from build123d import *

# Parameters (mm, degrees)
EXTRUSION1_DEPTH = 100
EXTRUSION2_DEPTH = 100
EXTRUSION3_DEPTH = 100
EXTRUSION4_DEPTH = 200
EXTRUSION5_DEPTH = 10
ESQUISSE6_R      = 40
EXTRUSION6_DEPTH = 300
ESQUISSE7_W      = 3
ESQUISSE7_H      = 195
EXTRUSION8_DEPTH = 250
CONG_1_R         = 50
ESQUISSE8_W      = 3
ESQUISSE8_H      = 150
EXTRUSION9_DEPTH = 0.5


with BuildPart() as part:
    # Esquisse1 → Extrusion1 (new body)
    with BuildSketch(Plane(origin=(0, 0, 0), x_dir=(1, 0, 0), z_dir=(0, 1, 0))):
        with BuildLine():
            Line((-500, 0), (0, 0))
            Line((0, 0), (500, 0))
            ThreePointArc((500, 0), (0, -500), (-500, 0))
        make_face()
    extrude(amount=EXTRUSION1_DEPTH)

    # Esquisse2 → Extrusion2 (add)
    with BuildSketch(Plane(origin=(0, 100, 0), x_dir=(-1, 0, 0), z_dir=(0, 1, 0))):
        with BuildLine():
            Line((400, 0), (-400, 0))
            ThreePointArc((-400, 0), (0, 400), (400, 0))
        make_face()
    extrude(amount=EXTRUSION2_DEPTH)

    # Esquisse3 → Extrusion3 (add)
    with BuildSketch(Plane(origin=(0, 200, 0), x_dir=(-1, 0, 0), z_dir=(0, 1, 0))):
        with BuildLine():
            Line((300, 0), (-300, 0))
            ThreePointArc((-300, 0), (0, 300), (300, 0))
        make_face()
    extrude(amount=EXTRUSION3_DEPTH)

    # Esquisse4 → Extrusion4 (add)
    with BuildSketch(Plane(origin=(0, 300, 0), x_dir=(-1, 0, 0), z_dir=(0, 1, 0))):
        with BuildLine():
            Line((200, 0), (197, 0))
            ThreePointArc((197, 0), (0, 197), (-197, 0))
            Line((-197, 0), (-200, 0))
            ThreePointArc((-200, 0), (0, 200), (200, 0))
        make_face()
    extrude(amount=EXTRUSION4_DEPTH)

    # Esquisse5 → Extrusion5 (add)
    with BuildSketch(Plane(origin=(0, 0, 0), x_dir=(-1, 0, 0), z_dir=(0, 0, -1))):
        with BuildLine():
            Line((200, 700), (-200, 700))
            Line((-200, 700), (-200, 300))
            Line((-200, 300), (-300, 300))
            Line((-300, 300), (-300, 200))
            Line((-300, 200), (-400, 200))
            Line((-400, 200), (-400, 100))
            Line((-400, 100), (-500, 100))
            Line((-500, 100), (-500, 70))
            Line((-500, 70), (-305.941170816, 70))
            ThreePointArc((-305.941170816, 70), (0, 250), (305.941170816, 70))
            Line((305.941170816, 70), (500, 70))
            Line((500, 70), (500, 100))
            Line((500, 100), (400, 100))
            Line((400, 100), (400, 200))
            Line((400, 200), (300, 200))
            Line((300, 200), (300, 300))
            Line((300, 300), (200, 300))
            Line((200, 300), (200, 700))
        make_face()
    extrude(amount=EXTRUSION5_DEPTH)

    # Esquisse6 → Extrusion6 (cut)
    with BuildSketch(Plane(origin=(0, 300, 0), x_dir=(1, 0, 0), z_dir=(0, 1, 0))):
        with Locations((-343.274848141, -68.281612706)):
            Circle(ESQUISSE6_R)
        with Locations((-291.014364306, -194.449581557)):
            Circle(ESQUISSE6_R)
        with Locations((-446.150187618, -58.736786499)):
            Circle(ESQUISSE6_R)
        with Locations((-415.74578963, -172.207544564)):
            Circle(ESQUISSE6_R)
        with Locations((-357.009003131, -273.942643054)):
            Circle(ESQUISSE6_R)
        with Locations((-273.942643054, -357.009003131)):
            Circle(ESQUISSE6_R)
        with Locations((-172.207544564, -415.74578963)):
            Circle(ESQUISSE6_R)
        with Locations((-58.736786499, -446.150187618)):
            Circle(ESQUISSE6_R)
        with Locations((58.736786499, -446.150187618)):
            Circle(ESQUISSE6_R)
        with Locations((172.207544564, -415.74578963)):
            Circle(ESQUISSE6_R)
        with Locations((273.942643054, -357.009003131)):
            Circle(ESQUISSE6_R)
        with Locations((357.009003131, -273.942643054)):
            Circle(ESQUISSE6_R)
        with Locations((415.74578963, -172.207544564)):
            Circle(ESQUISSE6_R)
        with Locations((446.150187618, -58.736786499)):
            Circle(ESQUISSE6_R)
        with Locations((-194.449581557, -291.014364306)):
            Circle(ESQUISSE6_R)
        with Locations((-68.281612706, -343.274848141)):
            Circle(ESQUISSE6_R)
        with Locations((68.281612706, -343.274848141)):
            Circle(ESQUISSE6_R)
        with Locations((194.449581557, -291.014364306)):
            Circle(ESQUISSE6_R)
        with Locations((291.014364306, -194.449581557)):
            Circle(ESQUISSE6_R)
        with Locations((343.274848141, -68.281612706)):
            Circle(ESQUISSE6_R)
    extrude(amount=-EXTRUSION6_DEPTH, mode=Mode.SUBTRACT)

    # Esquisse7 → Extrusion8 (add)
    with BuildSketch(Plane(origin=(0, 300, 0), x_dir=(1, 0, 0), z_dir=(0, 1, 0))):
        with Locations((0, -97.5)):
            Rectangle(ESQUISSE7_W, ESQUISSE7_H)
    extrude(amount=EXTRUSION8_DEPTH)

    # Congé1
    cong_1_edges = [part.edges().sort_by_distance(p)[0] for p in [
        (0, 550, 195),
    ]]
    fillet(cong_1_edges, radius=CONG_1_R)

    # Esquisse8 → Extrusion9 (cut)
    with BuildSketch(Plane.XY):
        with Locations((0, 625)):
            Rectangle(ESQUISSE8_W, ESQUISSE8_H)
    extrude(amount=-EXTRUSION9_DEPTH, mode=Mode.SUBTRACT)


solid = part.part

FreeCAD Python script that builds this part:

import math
import FreeCAD as App
import Part
import Sketcher


def edges_at(feature, points):
    """Names of the edges that pass closest to the given points."""
    edges = feature.Shape.Edges
    near = lambda p: min(range(len(edges)), key=lambda i: edges[i].distToShape(Part.Vertex(*p))[0])
    return sorted({f"Edge{near(p) + 1}" for p in points})

doc = App.newDocument("Part")
body = doc.addObject("PartDesign::Body", "Body")

sketch1 = doc.addObject("Sketcher::SketchObject", "Sketch")
body.addObject(sketch1)
sketch1.AttachmentSupport = (doc.XZ_Plane, [""])
sketch1.MapMode = "FlatFace"
sketch1.addGeometry([
    Part.LineSegment(App.Vector(500, 0, 0), App.Vector(-500, 0, 0)),
    Part.ArcOfCircle(Part.Circle(App.Vector(0, 0, 0), App.Vector(0, 0, 1), 500), math.radians(0), math.radians(180)),
], False)
sketch1.addConstraint([
    Sketcher.Constraint("Coincident", 0, 1, 1, 1),
    Sketcher.Constraint("Coincident", 1, 2, 0, 2),
    Sketcher.Constraint("Horizontal", 0),
    Sketcher.Constraint("Coincident", 1, 3, -1, 1),
    Sketcher.Constraint("PointOnObject", 0, 1, -1),
    Sketcher.Constraint("Radius", 1, 500.0),
])
pad1 = doc.addObject("PartDesign::Pad", "Pad")
body.addObject(pad1)
pad1.Profile = sketch1
pad1.Length = 100
pad1.Reversed = True

sketch2 = doc.addObject("Sketcher::SketchObject", "Sketch001")
body.addObject(sketch2)
sketch2.AttachmentSupport = (doc.XZ_Plane, [""])
sketch2.MapMode = "FlatFace"
sketch2.AttachmentOffset = App.Placement(App.Vector(0, 0, -100), App.Rotation())
sketch2.addGeometry([
    Part.LineSegment(App.Vector(400, 0, 0), App.Vector(-400, 0, 0)),
    Part.ArcOfCircle(Part.Circle(App.Vector(0, 0, 0), App.Vector(0, 0, 1), 400), math.radians(0), math.radians(180)),
], False)
sketch2.addConstraint([
    Sketcher.Constraint("Coincident", 0, 1, 1, 1),
    Sketcher.Constraint("Coincident", 1, 2, 0, 2),
    Sketcher.Constraint("Horizontal", 0),
    Sketcher.Constraint("Coincident", 1, 3, -1, 1),
    Sketcher.Constraint("PointOnObject", 0, 1, -1),
    Sketcher.Constraint("Radius", 1, 400.0),
])
pad2 = doc.addObject("PartDesign::Pad", "Pad001")
body.addObject(pad2)
pad2.Profile = sketch2
pad2.Length = 100
pad2.Reversed = True

sketch3 = doc.addObject("Sketcher::SketchObject", "Sketch002")
body.addObject(sketch3)
sketch3.AttachmentSupport = (doc.XZ_Plane, [""])
sketch3.MapMode = "FlatFace"
sketch3.AttachmentOffset = App.Placement(App.Vector(0, 0, -200), App.Rotation())
sketch3.addGeometry([
    Part.LineSegment(App.Vector(300, 0, 0), App.Vector(-300, 0, 0)),
    Part.ArcOfCircle(Part.Circle(App.Vector(0, 0, 0), App.Vector(0, 0, 1), 300), math.radians(0), math.radians(180)),
], False)
sketch3.addConstraint([
    Sketcher.Constraint("Coincident", 0, 1, 1, 1),
    Sketcher.Constraint("Coincident", 1, 2, 0, 2),
    Sketcher.Constraint("Horizontal", 0),
    Sketcher.Constraint("Coincident", 1, 3, -1, 1),
    Sketcher.Constraint("PointOnObject", 0, 1, -1),
    Sketcher.Constraint("Radius", 1, 300.0),
])
pad3 = doc.addObject("PartDesign::Pad", "Pad002")
body.addObject(pad3)
pad3.Profile = sketch3
pad3.Length = 100
pad3.Reversed = True

sketch4 = doc.addObject("Sketcher::SketchObject", "Sketch003")
body.addObject(sketch4)
sketch4.AttachmentSupport = (doc.XZ_Plane, [""])
sketch4.MapMode = "FlatFace"
sketch4.AttachmentOffset = App.Placement(App.Vector(0, 0, -300), App.Rotation())
sketch4.addGeometry([
    Part.LineSegment(App.Vector(-197, 0, 0), App.Vector(-200, 0, 0)),
    Part.ArcOfCircle(Part.Circle(App.Vector(0, 0, 0), App.Vector(0, 0, 1), 200), math.radians(0), math.radians(180)),
    Part.LineSegment(App.Vector(200, 0, 0), App.Vector(197, 0, 0)),
    Part.ArcOfCircle(Part.Circle(App.Vector(0, 0, 0), App.Vector(0, 0, 1), 197), math.radians(0), math.radians(180)),
], False)
sketch4.addConstraint([
    Sketcher.Constraint("Coincident", 0, 2, 1, 2),
    Sketcher.Constraint("Coincident", 1, 1, 2, 1),
    Sketcher.Constraint("Coincident", 2, 2, 3, 1),
    Sketcher.Constraint("Coincident", 3, 2, 0, 1),
    Sketcher.Constraint("Horizontal", 0),
    Sketcher.Constraint("Horizontal", 2),
    Sketcher.Constraint("Coincident", 1, 3, -1, 1),
    Sketcher.Constraint("Coincident", 3, 3, -1, 1),
    Sketcher.Constraint("PointOnObject", 0, 2, -1),
    Sketcher.Constraint("PointOnObject", 1, 1, -1),
    Sketcher.Constraint("Radius", 1, 200.0),
    Sketcher.Constraint("Radius", 3, 197.0),
])
pad4 = doc.addObject("PartDesign::Pad", "Pad003")
body.addObject(pad4)
pad4.Profile = sketch4
pad4.Length = 200
pad4.Reversed = True

sketch5 = doc.addObject("Sketcher::SketchObject", "Sketch004")
body.addObject(sketch5)
sketch5.AttachmentSupport = (doc.XY_Plane, [""])
sketch5.MapMode = "FlatFace"
sketch5.addGeometry([
    Part.LineSegment(App.Vector(-200, 700, 0), App.Vector(200, 700, 0)),
    Part.LineSegment(App.Vector(200, 700, 0), App.Vector(200, 300, 0)),
    Part.LineSegment(App.Vector(200, 300, 0), App.Vector(300, 300, 0)),
    Part.LineSegment(App.Vector(300, 300, 0), App.Vector(300, 200, 0)),
    Part.LineSegment(App.Vector(300, 200, 0), App.Vector(400, 200, 0)),
    Part.LineSegment(App.Vector(400, 200, 0), App.Vector(400, 100, 0)),
    Part.LineSegment(App.Vector(400, 100, 0), App.Vector(500, 100, 0)),
    Part.LineSegment(App.Vector(500, 100, 0), App.Vector(500, 70, 0)),
    Part.LineSegment(App.Vector(500, 70, 0), App.Vector(306, 70, 0)),
    Part.ArcOfCircle(Part.Circle(App.Vector(0, -100, 0), App.Vector(0, 0, 1), 350), math.radians(29), math.radians(151)),
    Part.LineSegment(App.Vector(-306, 70, 0), App.Vector(-500, 70, 0)),
    Part.LineSegment(App.Vector(-500, 70, 0), App.Vector(-500, 100, 0)),
    Part.LineSegment(App.Vector(-500, 100, 0), App.Vector(-400, 100, 0)),
    Part.LineSegment(App.Vector(-400, 100, 0), App.Vector(-400, 200, 0)),
    Part.LineSegment(App.Vector(-400, 200, 0), App.Vector(-300, 200, 0)),
    Part.LineSegment(App.Vector(-300, 200, 0), App.Vector(-300, 300, 0)),
    Part.LineSegment(App.Vector(-300, 300, 0), App.Vector(-200, 300, 0)),
    Part.LineSegment(App.Vector(-200, 300, 0), App.Vector(-200, 700, 0)),
], False)
sketch5.addConstraint([
    Sketcher.Constraint("Coincident", 0, 2, 1, 1),
    Sketcher.Constraint("Coincident", 1, 2, 2, 1),
    Sketcher.Constraint("Coincident", 2, 2, 3, 1),
    Sketcher.Constraint("Coincident", 3, 2, 4, 1),
    Sketcher.Constraint("Coincident", 4, 2, 5, 1),
    Sketcher.Constraint("Coincident", 5, 2, 6, 1),
    Sketcher.Constraint("Coincident", 6, 2, 7, 1),
    Sketcher.Constraint("Coincident", 7, 2, 8, 1),
    Sketcher.Constraint("Coincident", 8, 2, 9, 1),
    Sketcher.Constraint("Coincident", 9, 2, 10, 1),
    Sketcher.Constraint("Coincident", 10, 2, 11, 1),
    Sketcher.Constraint("Coincident", 11, 2, 12, 1),
    Sketcher.Constraint("Coincident", 12, 2, 13, 1),
    Sketcher.Constraint("Coincident", 13, 2, 14, 1),
    Sketcher.Constraint("Coincident", 14, 2, 15, 1),
    Sketcher.Constraint("Coincident", 15, 2, 16, 1),
    Sketcher.Constraint("Coincident", 16, 2, 17, 1),
    Sketcher.Constraint("Coincident", 17, 2, 0, 1),
    Sketcher.Constraint("Horizontal", 0),
    Sketcher.Constraint("Vertical", 1),
    Sketcher.Constraint("Horizontal", 2),
    Sketcher.Constraint("Vertical", 3),
    Sketcher.Constraint("Horizontal", 4),
    Sketcher.Constraint("Vertical", 5),
    Sketcher.Constraint("Horizontal", 6),
    Sketcher.Constraint("Vertical", 7),
    Sketcher.Constraint("Horizontal", 8),
    Sketcher.Constraint("Horizontal", 10),
    Sketcher.Constraint("Vertical", 11),
    Sketcher.Constraint("Horizontal", 12),
    Sketcher.Constraint("Vertical", 13),
    Sketcher.Constraint("Horizontal", 14),
    Sketcher.Constraint("Vertical", 15),
    Sketcher.Constraint("Horizontal", 16),
    Sketcher.Constraint("Vertical", 17),
    Sketcher.Constraint("Symmetric", 8, 2, 9, 2, -2),
    Sketcher.Constraint("Symmetric", 6, 2, 11, 2, -2),
    Sketcher.Constraint("Symmetric", 4, 2, 13, 2, -2),
    Sketcher.Constraint("Symmetric", 2, 2, 15, 2, -2),
    Sketcher.Constraint("Equal", 2, 4),
    Sketcher.Constraint("Equal", 4, 6),
    Sketcher.Constraint("Equal", 14, 16),
    Sketcher.Constraint("Equal", 0, 1),
    Sketcher.Constraint("Equal", 16, 3),
    Sketcher.Constraint("Equal", 3, 5),
    Sketcher.Constraint("Radius", 9, 350.0),
    Sketcher.Constraint("DistanceX", 0, 1, 0, 2, 400.0),
    Sketcher.Constraint("DistanceX", 2, 1, 2, 2, 100.0),
    Sketcher.Constraint("DistanceY", 7, 2, 7, 1, 30.0),
    Sketcher.Constraint("DistanceY", 9, 3, -1, 1, 100.0),
    Sketcher.Constraint("DistanceY", -1, 1, 0, 2, 700.0),
])
pad5 = doc.addObject("PartDesign::Pad", "Pad004")
body.addObject(pad5)
pad5.Profile = sketch5
pad5.Length = 10
pad5.Reversed = True

sketch6 = doc.addObject("Sketcher::SketchObject", "Sketch005")
body.addObject(sketch6)
sketch6.AttachmentSupport = (doc.XZ_Plane, [""])
sketch6.MapMode = "FlatFace"
sketch6.AttachmentOffset = App.Placement(App.Vector(0, 0, -300), App.Rotation())
sketch6.addGeometry([
    Part.Circle(App.Vector(-343, 68, 0), App.Vector(0, 0, 1), 40),
    Part.Circle(App.Vector(-291, 194, 0), App.Vector(0, 0, 1), 40),
    Part.Circle(App.Vector(-446, 59, 0), App.Vector(0, 0, 1), 40),
    Part.Circle(App.Vector(-416, 172, 0), App.Vector(0, 0, 1), 40),
    Part.Circle(App.Vector(-357, 274, 0), App.Vector(0, 0, 1), 40),
    Part.Circle(App.Vector(-274, 357, 0), App.Vector(0, 0, 1), 40),
    Part.Circle(App.Vector(-172, 416, 0), App.Vector(0, 0, 1), 40),
    Part.Circle(App.Vector(-59, 446, 0), App.Vector(0, 0, 1), 40),
    Part.Circle(App.Vector(59, 446, 0), App.Vector(0, 0, 1), 40),
    Part.Circle(App.Vector(172, 416, 0), App.Vector(0, 0, 1), 40),
    Part.Circle(App.Vector(274, 357, 0), App.Vector(0, 0, 1), 40),
    Part.Circle(App.Vector(357, 274, 0), App.Vector(0, 0, 1), 40),
    Part.Circle(App.Vector(416, 172, 0), App.Vector(0, 0, 1), 40),
    Part.Circle(App.Vector(446, 59, 0), App.Vector(0, 0, 1), 40),
    Part.Circle(App.Vector(-194, 291, 0), App.Vector(0, 0, 1), 40),
    Part.Circle(App.Vector(-68, 343, 0), App.Vector(0, 0, 1), 40),
    Part.Circle(App.Vector(68, 343, 0), App.Vector(0, 0, 1), 40),
    Part.Circle(App.Vector(194, 291, 0), App.Vector(0, 0, 1), 40),
    Part.Circle(App.Vector(291, 194, 0), App.Vector(0, 0, 1), 40),
    Part.Circle(App.Vector(343, 68, 0), App.Vector(0, 0, 1), 40),
], False)
sketch6.addConstraint([
    Sketcher.Constraint("Equal", 0, 1),
    Sketcher.Constraint("Equal", 1, 2),
    Sketcher.Constraint("Equal", 2, 3),
    Sketcher.Constraint("Equal", 3, 4),
    Sketcher.Constraint("Equal", 4, 5),
    Sketcher.Constraint("Equal", 5, 6),
    Sketcher.Constraint("Equal", 6, 7),
    Sketcher.Constraint("Equal", 7, 8),
    Sketcher.Constraint("Equal", 8, 9),
    Sketcher.Constraint("Equal", 9, 10),
    Sketcher.Constraint("Equal", 10, 11),
    Sketcher.Constraint("Equal", 11, 12),
    Sketcher.Constraint("Equal", 12, 13),
    Sketcher.Constraint("Equal", 13, 14),
    Sketcher.Constraint("Equal", 14, 15),
    Sketcher.Constraint("Equal", 15, 16),
    Sketcher.Constraint("Equal", 16, 17),
    Sketcher.Constraint("Equal", 17, 18),
    Sketcher.Constraint("Equal", 18, 19),
    Sketcher.Constraint("Symmetric", 7, 3, 8, 3, -2),
    Sketcher.Constraint("Symmetric", 6, 3, 9, 3, -2),
    Sketcher.Constraint("Symmetric", 5, 3, 10, 3, -2),
    Sketcher.Constraint("Symmetric", 4, 3, 11, 3, -2),
    Sketcher.Constraint("Symmetric", 3, 3, 12, 3, -2),
    Sketcher.Constraint("Symmetric", 2, 3, 13, 3, -2),
    Sketcher.Constraint("Symmetric", 15, 3, 16, 3, -2),
    Sketcher.Constraint("Symmetric", 14, 3, 17, 3, -2),
    Sketcher.Constraint("Symmetric", 1, 3, 18, 3, -2),
    Sketcher.Constraint("Symmetric", 0, 3, 19, 3, -2),
    Sketcher.Constraint("Diameter", 0, 80.0),
    Sketcher.Constraint("DistanceY", 3, 3, 4, 3, 101.735098),
    Sketcher.Constraint("DistanceX", 5, 3, 6, 3, 101.735098),
    Sketcher.Constraint("DistanceX", 8, 3, 13, 3, 387.413401),
    Sketcher.Constraint("DistanceY", 13, 3, 8, 3, 387.413401),
    Sketcher.Constraint("DistanceX", 15, 3, 8, 3, 127.018399),
    Sketcher.Constraint("DistanceX", 0, 3, -1, 1, 343.274848),
    Sketcher.Constraint("DistanceY", -1, 1, 1, 3, 194.449582),
    Sketcher.Constraint("DistanceX", 3, 3, -1, 1, 415.74579),
    Sketcher.Constraint("DistanceY", -1, 1, 6, 3, 415.74579),
    Sketcher.Constraint("DistanceX", 14, 3, -1, 1, 194.449582),
    Sketcher.Constraint("DistanceY", -1, 1, 15, 3, 343.274848),
    Sketcher.Constraint("DistanceY", 0, 3, 1, 3, 126.167969),
    Sketcher.Constraint("DistanceX", 2, 3, 0, 3, 102.875339),
    Sketcher.Constraint("DistanceY", 2, 3, 3, 3, 113.470758),
    Sketcher.Constraint("DistanceY", 0, 3, 3, 3, 103.925932),
    Sketcher.Constraint("DistanceX", 4, 3, 1, 3, 65.994639),
    Sketcher.Constraint("DistanceX", 4, 3, 5, 3, 83.06636),
    Sketcher.Constraint("DistanceY", 4, 3, 5, 3, 83.06636),
    Sketcher.Constraint("DistanceX", 6, 3, 7, 3, 113.470758),
    Sketcher.Constraint("DistanceY", 14, 3, 5, 3, 65.994639),
])
pocket1 = doc.addObject("PartDesign::Pocket", "Pocket")
body.addObject(pocket1)
pocket1.Profile = sketch6
pocket1.Length = 300
pocket1.Reversed = True

sketch7 = doc.addObject("Sketcher::SketchObject", "Sketch006")
body.addObject(sketch7)
sketch7.AttachmentSupport = (doc.XZ_Plane, [""])
sketch7.MapMode = "FlatFace"
sketch7.AttachmentOffset = App.Placement(App.Vector(0, 0, -300), App.Rotation())
sketch7.addGeometry([
    Part.LineSegment(App.Vector(-1.5, 0, 0), App.Vector(-1.5, 195, 0)),
    Part.LineSegment(App.Vector(-1.5, 195, 0), App.Vector(1.5, 195, 0)),
    Part.LineSegment(App.Vector(1.5, 195, 0), App.Vector(1.5, 0, 0)),
    Part.LineSegment(App.Vector(1.5, 0, 0), App.Vector(-1.5, 0, 0)),
], False)
sketch7.addConstraint([
    Sketcher.Constraint("Coincident", 0, 2, 1, 1),
    Sketcher.Constraint("Coincident", 1, 2, 2, 1),
    Sketcher.Constraint("Coincident", 2, 2, 3, 1),
    Sketcher.Constraint("Coincident", 3, 2, 0, 1),
    Sketcher.Constraint("Vertical", 0),
    Sketcher.Constraint("Horizontal", 1),
    Sketcher.Constraint("Vertical", 2),
    Sketcher.Constraint("Horizontal", 3),
    Sketcher.Constraint("Symmetric", 2, 2, 3, 2, -1, 1),
    Sketcher.Constraint("DistanceX", 1, 1, 1, 2, 3.0),
    Sketcher.Constraint("DistanceY", 0, 1, 0, 2, 195.0),
])
pad6 = doc.addObject("PartDesign::Pad", "Pad005")
body.addObject(pad6)
pad6.Profile = sketch7
pad6.Length = 250
pad6.Reversed = True
doc.recompute()

fillet = doc.addObject("PartDesign::Fillet", "Fillet")
body.addObject(fillet)
fillet.Base = (pad6, edges_at(pad6, [(0, 550, 195)]))
fillet.Radius = 50

sketch8 = doc.addObject("Sketcher::SketchObject", "Sketch007")
body.addObject(sketch8)
sketch8.AttachmentSupport = (doc.XY_Plane, [""])
sketch8.MapMode = "FlatFace"
sketch8.addGeometry([
    Part.LineSegment(App.Vector(-1.5, 700, 0), App.Vector(-1.5, 550, 0)),
    Part.LineSegment(App.Vector(-1.5, 550, 0), App.Vector(1.5, 550, 0)),
    Part.LineSegment(App.Vector(1.5, 550, 0), App.Vector(1.5, 700, 0)),
    Part.LineSegment(App.Vector(1.5, 700, 0), App.Vector(-1.5, 700, 0)),
], False)
sketch8.addConstraint([
    Sketcher.Constraint("Coincident", 0, 2, 1, 1),
    Sketcher.Constraint("Coincident", 1, 2, 2, 1),
    Sketcher.Constraint("Coincident", 2, 2, 3, 1),
    Sketcher.Constraint("Coincident", 3, 2, 0, 1),
    Sketcher.Constraint("Vertical", 0),
    Sketcher.Constraint("Horizontal", 1),
    Sketcher.Constraint("Vertical", 2),
    Sketcher.Constraint("Horizontal", 3),
    Sketcher.Constraint("DistanceX", 1, 1, 1, 2, 3.0),
    Sketcher.Constraint("DistanceY", 0, 2, 0, 1, 150.0),
    Sketcher.Constraint("DistanceY", -1, 1, 0, 2, 550.0),
    Sketcher.Constraint("DistanceX", 0, 2, -1, 1, 1.5),
])
pocket2 = doc.addObject("PartDesign::Pocket", "Pocket001")
body.addObject(pocket2)
pocket2.Profile = sketch8
pocket2.Length = 0.5

doc.recompute()
